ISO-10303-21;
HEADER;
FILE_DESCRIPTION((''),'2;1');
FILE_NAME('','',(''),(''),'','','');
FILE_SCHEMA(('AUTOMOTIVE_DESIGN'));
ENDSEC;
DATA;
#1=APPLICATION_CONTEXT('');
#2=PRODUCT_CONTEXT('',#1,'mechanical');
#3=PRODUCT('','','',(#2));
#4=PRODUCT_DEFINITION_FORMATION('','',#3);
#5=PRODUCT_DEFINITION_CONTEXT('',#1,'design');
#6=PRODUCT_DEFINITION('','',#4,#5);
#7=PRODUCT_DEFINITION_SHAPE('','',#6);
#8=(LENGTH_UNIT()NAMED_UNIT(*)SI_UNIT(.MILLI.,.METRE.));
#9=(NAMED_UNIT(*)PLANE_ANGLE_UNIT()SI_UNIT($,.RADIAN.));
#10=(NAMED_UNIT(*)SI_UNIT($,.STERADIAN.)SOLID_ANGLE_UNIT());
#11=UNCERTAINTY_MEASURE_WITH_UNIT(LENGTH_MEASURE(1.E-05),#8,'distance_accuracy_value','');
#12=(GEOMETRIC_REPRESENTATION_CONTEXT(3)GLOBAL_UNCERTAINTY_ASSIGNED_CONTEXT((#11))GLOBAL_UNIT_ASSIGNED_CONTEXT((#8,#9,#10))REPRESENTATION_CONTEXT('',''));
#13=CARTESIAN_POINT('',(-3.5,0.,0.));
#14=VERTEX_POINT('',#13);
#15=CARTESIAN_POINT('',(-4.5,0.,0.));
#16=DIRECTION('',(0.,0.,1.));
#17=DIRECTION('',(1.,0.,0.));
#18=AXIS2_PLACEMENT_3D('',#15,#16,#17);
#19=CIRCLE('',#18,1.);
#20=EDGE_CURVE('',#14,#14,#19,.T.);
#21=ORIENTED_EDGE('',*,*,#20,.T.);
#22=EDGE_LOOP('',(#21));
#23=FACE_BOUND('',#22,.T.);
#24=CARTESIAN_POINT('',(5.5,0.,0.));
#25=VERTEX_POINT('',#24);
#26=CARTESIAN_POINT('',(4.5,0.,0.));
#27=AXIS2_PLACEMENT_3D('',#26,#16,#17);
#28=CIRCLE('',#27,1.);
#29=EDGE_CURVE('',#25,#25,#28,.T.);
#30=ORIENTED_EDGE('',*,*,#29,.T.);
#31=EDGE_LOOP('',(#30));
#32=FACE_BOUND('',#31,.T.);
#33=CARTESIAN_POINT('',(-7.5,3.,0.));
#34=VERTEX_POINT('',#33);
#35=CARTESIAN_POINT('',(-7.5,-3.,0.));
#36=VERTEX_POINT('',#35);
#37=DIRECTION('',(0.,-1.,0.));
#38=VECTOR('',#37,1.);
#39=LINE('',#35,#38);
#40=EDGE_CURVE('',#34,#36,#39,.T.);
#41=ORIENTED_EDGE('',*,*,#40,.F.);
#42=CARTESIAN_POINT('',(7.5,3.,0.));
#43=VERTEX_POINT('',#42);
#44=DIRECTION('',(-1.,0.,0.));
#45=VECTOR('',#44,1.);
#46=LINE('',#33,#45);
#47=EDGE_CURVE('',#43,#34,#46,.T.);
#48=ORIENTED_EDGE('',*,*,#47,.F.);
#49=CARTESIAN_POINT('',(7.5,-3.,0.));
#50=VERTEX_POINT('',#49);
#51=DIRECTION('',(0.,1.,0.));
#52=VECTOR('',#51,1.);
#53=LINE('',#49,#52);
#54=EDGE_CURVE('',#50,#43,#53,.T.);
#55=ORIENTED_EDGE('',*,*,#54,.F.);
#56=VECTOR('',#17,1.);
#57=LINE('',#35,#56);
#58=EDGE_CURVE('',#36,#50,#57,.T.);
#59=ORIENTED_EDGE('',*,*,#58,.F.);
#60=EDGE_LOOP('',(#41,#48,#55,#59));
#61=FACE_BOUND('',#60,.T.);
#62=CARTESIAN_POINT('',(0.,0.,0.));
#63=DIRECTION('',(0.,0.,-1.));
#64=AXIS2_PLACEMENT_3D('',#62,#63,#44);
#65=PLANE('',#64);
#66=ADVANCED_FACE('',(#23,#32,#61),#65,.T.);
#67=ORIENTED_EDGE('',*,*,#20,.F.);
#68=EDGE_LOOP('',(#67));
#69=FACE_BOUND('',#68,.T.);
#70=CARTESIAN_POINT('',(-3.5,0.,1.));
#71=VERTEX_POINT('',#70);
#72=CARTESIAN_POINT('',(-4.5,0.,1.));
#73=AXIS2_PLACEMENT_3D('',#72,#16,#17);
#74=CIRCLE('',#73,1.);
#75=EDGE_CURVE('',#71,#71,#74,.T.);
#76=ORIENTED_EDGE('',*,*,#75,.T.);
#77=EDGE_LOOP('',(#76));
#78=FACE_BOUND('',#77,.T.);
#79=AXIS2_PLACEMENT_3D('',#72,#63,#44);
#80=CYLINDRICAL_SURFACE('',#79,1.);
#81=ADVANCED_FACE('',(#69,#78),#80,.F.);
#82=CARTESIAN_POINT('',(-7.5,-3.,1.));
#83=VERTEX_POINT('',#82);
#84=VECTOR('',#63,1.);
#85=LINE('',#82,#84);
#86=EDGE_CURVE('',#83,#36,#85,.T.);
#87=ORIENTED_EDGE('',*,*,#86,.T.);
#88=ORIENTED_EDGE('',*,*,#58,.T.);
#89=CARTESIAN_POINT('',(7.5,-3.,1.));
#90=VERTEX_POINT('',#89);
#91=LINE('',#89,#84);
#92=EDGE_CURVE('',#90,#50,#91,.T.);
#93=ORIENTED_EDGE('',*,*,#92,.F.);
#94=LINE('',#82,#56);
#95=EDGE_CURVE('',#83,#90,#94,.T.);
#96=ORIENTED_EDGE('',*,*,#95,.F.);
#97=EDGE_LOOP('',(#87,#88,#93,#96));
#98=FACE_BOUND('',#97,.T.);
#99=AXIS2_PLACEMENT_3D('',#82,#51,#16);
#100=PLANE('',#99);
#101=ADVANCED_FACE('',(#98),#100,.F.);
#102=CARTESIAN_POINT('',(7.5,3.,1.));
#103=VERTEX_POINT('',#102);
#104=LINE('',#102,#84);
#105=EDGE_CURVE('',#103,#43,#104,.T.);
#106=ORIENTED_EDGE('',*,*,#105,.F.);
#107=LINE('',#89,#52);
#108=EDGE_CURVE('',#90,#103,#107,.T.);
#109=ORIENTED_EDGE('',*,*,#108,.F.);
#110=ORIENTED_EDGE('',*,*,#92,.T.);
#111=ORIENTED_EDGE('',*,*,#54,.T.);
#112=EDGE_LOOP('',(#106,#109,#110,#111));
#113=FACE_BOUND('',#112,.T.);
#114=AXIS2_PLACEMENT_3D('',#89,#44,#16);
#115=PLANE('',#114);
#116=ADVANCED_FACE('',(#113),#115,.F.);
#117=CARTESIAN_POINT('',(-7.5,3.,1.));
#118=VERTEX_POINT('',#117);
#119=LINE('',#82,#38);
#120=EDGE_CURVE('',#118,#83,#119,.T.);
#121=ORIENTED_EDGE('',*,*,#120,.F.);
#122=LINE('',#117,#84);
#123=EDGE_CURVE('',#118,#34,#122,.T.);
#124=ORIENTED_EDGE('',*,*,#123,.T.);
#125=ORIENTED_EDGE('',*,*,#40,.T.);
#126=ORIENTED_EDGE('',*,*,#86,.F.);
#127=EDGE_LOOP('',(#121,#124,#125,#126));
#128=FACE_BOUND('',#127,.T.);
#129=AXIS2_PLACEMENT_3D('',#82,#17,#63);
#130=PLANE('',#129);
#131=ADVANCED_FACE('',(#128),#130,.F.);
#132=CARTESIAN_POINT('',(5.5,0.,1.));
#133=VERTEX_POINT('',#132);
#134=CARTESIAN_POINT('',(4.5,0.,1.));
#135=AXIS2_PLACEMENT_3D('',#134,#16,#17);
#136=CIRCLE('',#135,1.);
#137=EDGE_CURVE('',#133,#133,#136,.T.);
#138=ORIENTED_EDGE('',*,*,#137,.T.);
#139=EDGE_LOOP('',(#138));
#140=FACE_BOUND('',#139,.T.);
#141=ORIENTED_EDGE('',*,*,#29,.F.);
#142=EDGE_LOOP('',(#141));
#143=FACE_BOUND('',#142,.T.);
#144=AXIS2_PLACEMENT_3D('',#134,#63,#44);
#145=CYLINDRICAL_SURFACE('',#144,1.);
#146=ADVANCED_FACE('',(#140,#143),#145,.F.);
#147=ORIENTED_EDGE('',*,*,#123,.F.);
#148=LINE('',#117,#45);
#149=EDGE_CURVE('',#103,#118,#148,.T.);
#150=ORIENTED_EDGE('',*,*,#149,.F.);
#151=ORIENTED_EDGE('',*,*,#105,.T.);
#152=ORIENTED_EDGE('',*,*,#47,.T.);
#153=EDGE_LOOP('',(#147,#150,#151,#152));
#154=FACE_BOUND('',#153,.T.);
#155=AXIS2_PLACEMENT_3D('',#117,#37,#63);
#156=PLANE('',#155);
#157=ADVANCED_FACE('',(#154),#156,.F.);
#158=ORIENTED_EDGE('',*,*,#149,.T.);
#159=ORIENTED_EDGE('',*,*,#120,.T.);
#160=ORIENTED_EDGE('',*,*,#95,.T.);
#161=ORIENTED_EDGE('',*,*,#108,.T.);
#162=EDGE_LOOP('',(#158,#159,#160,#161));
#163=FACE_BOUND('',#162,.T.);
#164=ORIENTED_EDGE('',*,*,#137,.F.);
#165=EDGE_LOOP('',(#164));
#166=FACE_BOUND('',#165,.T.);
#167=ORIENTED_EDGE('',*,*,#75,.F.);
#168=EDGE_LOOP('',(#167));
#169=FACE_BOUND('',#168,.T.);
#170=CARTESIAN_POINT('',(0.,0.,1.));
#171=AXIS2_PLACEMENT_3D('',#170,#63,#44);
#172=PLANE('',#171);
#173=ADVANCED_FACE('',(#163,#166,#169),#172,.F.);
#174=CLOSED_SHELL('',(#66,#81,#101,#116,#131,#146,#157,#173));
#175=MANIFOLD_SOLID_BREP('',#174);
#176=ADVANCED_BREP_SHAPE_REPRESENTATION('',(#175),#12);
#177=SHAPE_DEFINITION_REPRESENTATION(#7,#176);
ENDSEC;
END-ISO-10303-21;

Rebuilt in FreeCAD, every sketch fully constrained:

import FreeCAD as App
import Part
import Sketcher


def add_polygon(sketch, points):
    """Adds a closed chain of lines whose ends are joined by coincident constraints."""
    first, n = sketch.GeometryCount, len(points)
    for a, b in zip(points, points[1:] + points[:1]):
        sketch.addGeometry(Part.LineSegment(App.Vector(*a, 0), App.Vector(*b, 0)), False)
    for i in range(n):
        sketch.addConstraint(Sketcher.Constraint("Coincident", first + i, 2, first + (i + 1) % n, 1))

doc = App.newDocument("Part")
body = doc.addObject("PartDesign::Body", "Body")

# Sketch on XY plane
sketch1 = body.newObject("Sketcher::SketchObject", "Sketch")
sketch1.AttachmentSupport = (doc.getObject("XY_Plane"), [""])
sketch1.MapMode = "FlatFace"
add_polygon(sketch1, [(-7.5, 3), (-7.5, -3), (7.5, -3), (7.5, 3)])  # lines 0-3
sketch1.addGeometry(Part.Circle(App.Vector(-4.5, 0, 0), App.Vector(0, 0, 1), 1), False)  # 4
sketch1.addGeometry(Part.Circle(App.Vector(4.5, 0, 0), App.Vector(0, 0, 1), 1), False)  # 5
sketch1.addConstraint([
    Sketcher.Constraint("Vertical", 0),
    Sketcher.Constraint("Horizontal", 1),
    Sketcher.Constraint("Vertical", 2),
    Sketcher.Constraint("Horizontal", 3),
    Sketcher.Constraint("Equal", 4, 5),
    Sketcher.Constraint("Symmetric", 4, 3, 5, 3, -1, 1),
    Sketcher.Constraint("Symmetric", 0, 2, 2, 2, -1, 1),
    Sketcher.Constraint("PointOnObject", 4, 3, -1),
    Sketcher.Constraint("Diameter", 4, 2.0),
    Sketcher.Constraint("DistanceX", 1, 1, 1, 2, 15.0),
    Sketcher.Constraint("DistanceY", 0, 2, 0, 1, 6.0),
    Sketcher.Constraint("DistanceX", 4, 3, 5, 3, 9.0),
])
pad1 = body.newObject("PartDesign::Pad", "Pad")
pad1.Profile = sketch1
pad1.Length = 1

doc.recompute()
